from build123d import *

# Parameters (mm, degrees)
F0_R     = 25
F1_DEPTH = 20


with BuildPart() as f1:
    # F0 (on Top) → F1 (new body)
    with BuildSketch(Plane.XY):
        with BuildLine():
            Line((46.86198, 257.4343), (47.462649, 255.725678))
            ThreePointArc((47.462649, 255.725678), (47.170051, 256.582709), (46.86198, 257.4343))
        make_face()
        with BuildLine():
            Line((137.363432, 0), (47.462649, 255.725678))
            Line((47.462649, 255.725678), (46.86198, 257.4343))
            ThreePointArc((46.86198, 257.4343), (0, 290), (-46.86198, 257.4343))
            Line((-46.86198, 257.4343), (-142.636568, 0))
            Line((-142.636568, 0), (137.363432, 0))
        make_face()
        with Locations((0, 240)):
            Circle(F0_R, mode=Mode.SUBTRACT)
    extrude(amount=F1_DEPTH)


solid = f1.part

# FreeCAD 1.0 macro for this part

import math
import FreeCAD as App
import Part
import Sketcher

doc = App.newDocument("Part")
body = doc.addObject("PartDesign::Body", "Body")

sketch1 = body.newObject("Sketcher::SketchObject", "Sketch")
sketch1.AttachmentSupport = (doc.getObject("XY_Plane"), [""])
sketch1.MapMode = "FlatFace"
sketch1.addGeometry([
    Part.ArcOfCircle(Part.Circle(App.Vector(-0.002484, 239.999123, 0), App.Vector(0, 0, 1), 50.002634), math.radians(18.331509), math.radians(20.406915)),
    Part.ArcOfCircle(Part.Circle(App.Vector(0, 240, 0), App.Vector(0, 0, 1), 50), math.radians(20.406966), math.radians(159.593034)),
    Part.LineSegment(App.Vector(-46.86198, 257.4343, 0), App.Vector(-142.636568, 0, 0)),
    Part.LineSegment(App.Vector(-142.636568, 0, 0), App.Vector(137.363432, 0, 0)),
    Part.LineSegment(App.Vector(137.363432, 0, 0), App.Vector(47.462649, 255.725678, 0)),
    Part.Circle(App.Vector(0, 240, 0), App.Vector(0, 0, 1), 25),
], False)
sketch1.addConstraint([
    Sketcher.Constraint("Coincident", 0, 2, 1, 1),
    Sketcher.Constraint("Coincident", 1, 2, 2, 1),
    Sketcher.Constraint("Coincident", 2, 2, 3, 1),
    Sketcher.Constraint("Coincident", 3, 2, 4, 1),
    Sketcher.Constraint("Coincident", 4, 2, 0, 1),
    Sketcher.Constraint("Horizontal", 3),
    Sketcher.Constraint("Coincident", 5, 3, 1, 3),
    Sketcher.Constraint("PointOnObject", 1, 3, -2),
    Sketcher.Constraint("PointOnObject", 2, 2, -1),
    Sketcher.Constraint("Diameter", 5, 50.0),
    Sketcher.Constraint("Radius", 1, 50.0),
    Sketcher.Constraint("DistanceX", 3, 1, 3, 2, 280.0),
    Sketcher.Constraint("DistanceY", -1, 1, 1, 3, 240.0),
    Sketcher.Constraint("Radius", 0, 50.002634),
    Sketcher.Constraint("DistanceY", -1, 1, 0, 2, 257.4343),
    Sketcher.Constraint("DistanceY", -1, 1, 1, 2, 257.4343),
    Sketcher.Constraint("Distance", 2, 274.672879),
    Sketcher.Constraint("Distance", 4, 271.067839),
    Sketcher.Constraint("DistanceX", -1, 1, 4, 2, 47.462649),
])
pad1 = body.newObject("PartDesign::Pad", "Pad")
pad1.Profile = sketch1
pad1.Length = 20

doc.recompute()
